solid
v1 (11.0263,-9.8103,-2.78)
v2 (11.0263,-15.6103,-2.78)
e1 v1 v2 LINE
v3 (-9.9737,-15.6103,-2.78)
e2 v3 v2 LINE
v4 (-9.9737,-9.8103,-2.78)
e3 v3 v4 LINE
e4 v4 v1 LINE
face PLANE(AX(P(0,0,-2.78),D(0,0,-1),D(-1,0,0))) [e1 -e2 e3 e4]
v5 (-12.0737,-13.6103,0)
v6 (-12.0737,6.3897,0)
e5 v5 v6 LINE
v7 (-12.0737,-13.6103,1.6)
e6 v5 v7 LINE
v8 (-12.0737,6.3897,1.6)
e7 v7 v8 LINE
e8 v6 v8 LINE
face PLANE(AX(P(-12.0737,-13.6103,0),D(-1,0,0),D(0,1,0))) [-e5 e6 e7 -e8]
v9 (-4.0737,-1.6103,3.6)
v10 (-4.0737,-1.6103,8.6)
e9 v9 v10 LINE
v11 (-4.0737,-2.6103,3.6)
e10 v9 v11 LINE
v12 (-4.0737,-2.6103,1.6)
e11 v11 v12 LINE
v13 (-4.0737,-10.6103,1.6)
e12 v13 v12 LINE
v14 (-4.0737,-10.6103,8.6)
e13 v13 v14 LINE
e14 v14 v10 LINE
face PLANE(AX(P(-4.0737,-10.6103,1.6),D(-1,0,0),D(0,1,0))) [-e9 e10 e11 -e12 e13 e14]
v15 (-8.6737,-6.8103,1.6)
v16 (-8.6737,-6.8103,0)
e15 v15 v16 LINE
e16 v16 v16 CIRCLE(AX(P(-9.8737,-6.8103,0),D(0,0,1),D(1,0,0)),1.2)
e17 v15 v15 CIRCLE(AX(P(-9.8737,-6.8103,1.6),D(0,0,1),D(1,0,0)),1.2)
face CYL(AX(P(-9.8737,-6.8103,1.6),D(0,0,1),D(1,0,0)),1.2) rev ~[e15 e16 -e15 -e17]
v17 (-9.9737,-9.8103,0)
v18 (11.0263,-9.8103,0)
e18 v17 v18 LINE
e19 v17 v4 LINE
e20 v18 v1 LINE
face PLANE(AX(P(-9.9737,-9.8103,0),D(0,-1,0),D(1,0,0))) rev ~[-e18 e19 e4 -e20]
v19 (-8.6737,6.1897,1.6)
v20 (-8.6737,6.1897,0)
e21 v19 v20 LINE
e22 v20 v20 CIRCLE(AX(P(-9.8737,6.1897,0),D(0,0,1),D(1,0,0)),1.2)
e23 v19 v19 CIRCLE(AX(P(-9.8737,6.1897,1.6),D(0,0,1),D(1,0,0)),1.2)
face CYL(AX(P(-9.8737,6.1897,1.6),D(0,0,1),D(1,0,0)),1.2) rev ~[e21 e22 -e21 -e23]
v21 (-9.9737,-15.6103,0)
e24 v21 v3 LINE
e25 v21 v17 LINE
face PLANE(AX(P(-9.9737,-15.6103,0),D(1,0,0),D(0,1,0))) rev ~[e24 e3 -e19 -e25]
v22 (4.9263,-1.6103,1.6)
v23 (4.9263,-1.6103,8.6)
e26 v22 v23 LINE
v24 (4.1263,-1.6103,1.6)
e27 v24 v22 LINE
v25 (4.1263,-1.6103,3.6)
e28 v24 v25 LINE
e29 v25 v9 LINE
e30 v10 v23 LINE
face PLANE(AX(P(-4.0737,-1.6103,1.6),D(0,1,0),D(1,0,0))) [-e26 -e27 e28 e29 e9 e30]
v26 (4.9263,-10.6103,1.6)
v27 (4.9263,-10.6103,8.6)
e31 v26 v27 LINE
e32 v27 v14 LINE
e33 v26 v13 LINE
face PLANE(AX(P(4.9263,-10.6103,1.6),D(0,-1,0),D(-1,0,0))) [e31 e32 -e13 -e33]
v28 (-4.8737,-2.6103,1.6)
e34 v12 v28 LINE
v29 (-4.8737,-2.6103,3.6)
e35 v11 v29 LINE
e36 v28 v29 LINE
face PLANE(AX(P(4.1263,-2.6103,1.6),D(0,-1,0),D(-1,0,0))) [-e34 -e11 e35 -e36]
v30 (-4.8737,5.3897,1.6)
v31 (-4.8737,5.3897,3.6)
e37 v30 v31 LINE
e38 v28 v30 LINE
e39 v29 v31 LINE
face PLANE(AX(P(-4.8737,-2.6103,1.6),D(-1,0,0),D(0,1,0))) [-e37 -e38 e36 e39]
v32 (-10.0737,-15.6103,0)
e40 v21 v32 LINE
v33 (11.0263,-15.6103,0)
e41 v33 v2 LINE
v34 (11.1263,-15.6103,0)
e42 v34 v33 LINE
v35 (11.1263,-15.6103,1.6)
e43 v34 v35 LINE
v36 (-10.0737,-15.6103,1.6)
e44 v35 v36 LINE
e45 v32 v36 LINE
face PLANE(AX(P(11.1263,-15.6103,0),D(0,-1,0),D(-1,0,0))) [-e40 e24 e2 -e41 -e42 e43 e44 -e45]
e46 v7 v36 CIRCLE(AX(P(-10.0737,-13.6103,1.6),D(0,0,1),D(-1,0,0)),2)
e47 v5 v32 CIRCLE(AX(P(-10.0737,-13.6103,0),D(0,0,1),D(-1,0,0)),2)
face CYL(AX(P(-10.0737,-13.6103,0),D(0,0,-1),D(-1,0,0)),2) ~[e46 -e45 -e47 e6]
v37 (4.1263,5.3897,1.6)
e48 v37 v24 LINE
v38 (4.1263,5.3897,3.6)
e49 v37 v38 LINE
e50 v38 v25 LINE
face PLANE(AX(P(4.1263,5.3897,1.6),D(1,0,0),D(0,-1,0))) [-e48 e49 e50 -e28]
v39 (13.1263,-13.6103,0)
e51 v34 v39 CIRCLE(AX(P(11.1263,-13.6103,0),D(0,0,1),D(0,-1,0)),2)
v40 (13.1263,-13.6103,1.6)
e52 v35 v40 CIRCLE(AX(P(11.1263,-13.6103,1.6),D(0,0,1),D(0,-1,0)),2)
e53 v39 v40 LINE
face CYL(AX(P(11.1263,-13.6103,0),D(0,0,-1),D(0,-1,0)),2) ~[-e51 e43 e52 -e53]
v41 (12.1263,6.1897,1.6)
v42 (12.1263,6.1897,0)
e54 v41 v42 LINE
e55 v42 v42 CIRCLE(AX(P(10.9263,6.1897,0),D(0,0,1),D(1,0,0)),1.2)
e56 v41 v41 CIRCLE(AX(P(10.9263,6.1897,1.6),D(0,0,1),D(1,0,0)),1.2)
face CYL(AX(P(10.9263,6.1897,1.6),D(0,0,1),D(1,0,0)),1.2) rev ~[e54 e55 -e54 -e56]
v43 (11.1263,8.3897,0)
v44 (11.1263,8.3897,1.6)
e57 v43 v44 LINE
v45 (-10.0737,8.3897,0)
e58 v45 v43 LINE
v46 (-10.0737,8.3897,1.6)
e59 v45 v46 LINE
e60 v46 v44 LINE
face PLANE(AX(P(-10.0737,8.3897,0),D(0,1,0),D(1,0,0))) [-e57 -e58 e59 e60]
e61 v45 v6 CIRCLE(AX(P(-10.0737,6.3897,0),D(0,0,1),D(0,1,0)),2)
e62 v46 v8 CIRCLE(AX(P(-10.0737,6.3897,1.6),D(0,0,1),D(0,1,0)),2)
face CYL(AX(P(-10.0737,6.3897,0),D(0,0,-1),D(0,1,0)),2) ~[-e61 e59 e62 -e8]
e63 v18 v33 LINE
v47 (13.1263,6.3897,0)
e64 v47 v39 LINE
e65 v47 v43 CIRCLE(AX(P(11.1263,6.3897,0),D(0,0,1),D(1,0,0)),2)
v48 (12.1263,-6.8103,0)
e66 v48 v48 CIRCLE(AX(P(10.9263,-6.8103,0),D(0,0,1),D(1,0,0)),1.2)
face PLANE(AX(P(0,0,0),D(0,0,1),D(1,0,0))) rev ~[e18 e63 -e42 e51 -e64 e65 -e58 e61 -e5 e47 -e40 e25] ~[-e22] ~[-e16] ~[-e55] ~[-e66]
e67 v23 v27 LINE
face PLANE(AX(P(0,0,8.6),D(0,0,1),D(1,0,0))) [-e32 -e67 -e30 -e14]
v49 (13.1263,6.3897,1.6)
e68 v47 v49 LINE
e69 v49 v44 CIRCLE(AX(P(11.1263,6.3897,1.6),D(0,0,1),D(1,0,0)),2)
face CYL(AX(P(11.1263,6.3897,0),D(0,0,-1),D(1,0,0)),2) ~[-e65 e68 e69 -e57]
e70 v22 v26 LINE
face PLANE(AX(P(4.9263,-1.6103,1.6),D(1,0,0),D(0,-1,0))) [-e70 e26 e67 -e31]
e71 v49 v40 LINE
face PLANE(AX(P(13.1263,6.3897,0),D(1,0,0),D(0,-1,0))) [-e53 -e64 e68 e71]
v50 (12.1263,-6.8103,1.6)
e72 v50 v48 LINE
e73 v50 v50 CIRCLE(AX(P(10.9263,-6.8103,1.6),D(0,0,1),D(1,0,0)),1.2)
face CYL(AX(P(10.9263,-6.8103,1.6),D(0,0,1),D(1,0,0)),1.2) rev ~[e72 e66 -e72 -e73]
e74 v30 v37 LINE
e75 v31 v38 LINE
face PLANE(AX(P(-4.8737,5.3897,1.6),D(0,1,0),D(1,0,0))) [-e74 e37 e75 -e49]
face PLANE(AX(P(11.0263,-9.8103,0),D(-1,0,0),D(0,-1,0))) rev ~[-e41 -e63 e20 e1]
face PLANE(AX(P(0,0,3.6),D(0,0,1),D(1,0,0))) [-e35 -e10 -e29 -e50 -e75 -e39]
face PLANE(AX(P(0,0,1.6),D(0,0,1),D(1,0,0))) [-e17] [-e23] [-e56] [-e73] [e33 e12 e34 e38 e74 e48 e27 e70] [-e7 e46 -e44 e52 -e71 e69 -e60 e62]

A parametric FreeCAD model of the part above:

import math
import FreeCAD as App
import Part
import Sketcher
from FreeCAD import Vector

doc = App.newDocument("Part")
params = doc.addObject("Spreadsheet::Sheet", "Params")
for row, (alias, value) in enumerate([
    ("sketch1_radius", "2 mm"),
    ("sketch1_height", "20 mm"),
    ("sketch1_width", "21.2 mm"),
    ("pad1_length", "1.6 mm"),
    ("sketch2_diameter", "2.4 mm"),
    ("sketch3_width", "9 mm"),
    ("sketch3_height", "8 mm"),
    ("pad2_length", "2 mm"),
    ("sketch4_width", "9 mm"),
    ("pad3_length", "7 mm"),
    ("sketch5_width", "21 mm"),
    ("sketch5_height", "5.8 mm"),
    ("pad4_length", "2.78 mm"),
], start=1):
    params.set(f"A{row}", alias)
    params.set(f"B{row}", "=" + value)
    params.setAlias(f"B{row}", alias)

body = doc.addObject("PartDesign::Body", "Body")

# Sketch on XY plane
sketch1 = doc.addObject("Sketcher::SketchObject", "Sketch")
body.addObject(sketch1)
sketch1.AttachmentSupport = (doc.XY_Plane, [""])
sketch1.MapMode = "FlatFace"
sketch1.addGeometry([
    Part.LineSegment(Vector(11.1, 8.4, 0), Vector(-10.1, 8.4, 0)),  # 0
    Part.ArcOfCircle(Part.Circle(Vector(-10.1, 6.4, 0), Vector(0, 0, 1), 2), math.radians(90), math.radians(180)),  # 1
    Part.LineSegment(Vector(-12.1, 6.4, 0), Vector(-12.1, -13.6, 0)),  # 2
    Part.ArcOfCircle(Part.Circle(Vector(-10.1, -13.6, 0), Vector(0, 0, 1), 2), math.radians(180), math.radians(270)),  # 3
    Part.LineSegment(Vector(-10.1, -15.6, 0), Vector(11.1, -15.6, 0)),  # 4
    Part.ArcOfCircle(Part.Circle(Vector(11.1, -13.6, 0), Vector(0, 0, 1), 2), math.radians(-90), math.radians(0)),  # 5
    Part.LineSegment(Vector(13.1, -13.6, 0), Vector(13.1, 6.4, 0)),  # 6
    Part.ArcOfCircle(Part.Circle(Vector(11.1, 6.4, 0), Vector(0, 0, 1), 2), math.radians(0), math.radians(90)),  # 7
], False)
sketch1.addConstraint([
    Sketcher.Constraint("Tangent", 0, 2, 1, 1),
    Sketcher.Constraint("Tangent", 1, 2, 2, 1),
    Sketcher.Constraint("Tangent", 2, 2, 3, 1),
    Sketcher.Constraint("Tangent", 3, 2, 4, 1),
    Sketcher.Constraint("Tangent", 4, 2, 5, 1),
    Sketcher.Constraint("Tangent", 5, 2, 6, 1),
    Sketcher.Constraint("Tangent", 6, 2, 7, 1),
    Sketcher.Constraint("Tangent", 7, 2, 0, 1),
    Sketcher.Constraint("Horizontal", 0),
    Sketcher.Constraint("Vertical", 2),
    Sketcher.Constraint("Horizontal", 4),
    Sketcher.Constraint("Vertical", 6),
    Sketcher.Constraint("Equal", 1, 3),
    Sketcher.Constraint("Equal", 3, 5),
    Sketcher.Constraint("Equal", 5, 7),
    Sketcher.Constraint("Radius", 1, 2.0),
    Sketcher.Constraint("DistanceY", 2, 2, 2, 1, 20.0),
    Sketcher.Constraint("DistanceX", 0, 2, 0, 1, 21.2),
    Sketcher.Constraint("DistanceX", 1, 3, -1, 1, 10.0737),
    Sketcher.Constraint("DistanceY", -1, 1, 1, 3, 6.3897),
])
sketch1.setExpression("Constraints[15]", "Params.sketch1_radius")
sketch1.setExpression("Constraints[16]", "Params.sketch1_height")
sketch1.setExpression("Constraints[17]", "Params.sketch1_width")
pad1 = doc.addObject("PartDesign::Pad", "Pad")
body.addObject(pad1)
pad1.Profile = sketch1
pad1.setExpression("Length", "Params.pad1_length")

# Sketch on XY plane
sketch2 = doc.addObject("Sketcher::SketchObject", "Sketch001")
body.addObject(sketch2)
sketch2.AttachmentSupport = (doc.XY_Plane, [""])
sketch2.MapMode = "FlatFace"
sketch2.AttachmentOffset = App.Placement(Vector(0, 0, 1.6), App.Rotation())
sketch2.addGeometry([
    Part.Circle(Vector(-9.9, 6.2, 0), Vector(0, 0, 1), 1.2),
    Part.Circle(Vector(10.9, 6.2, 0), Vector(0, 0, 1), 1.2),
    Part.Circle(Vector(10.9, -6.8, 0), Vector(0, 0, 1), 1.2),
    Part.Circle(Vector(-9.9, -6.8, 0), Vector(0, 0, 1), 1.2),
], False)
sketch2.addConstraint([
    Sketcher.Constraint("Equal", 0, 1),
    Sketcher.Constraint("Equal", 1, 2),
    Sketcher.Constraint("Equal", 2, 3),
    Sketcher.Constraint("Horizontal", 0, 3, 1, 3),
    Sketcher.Constraint("Horizontal", 2, 3, 3, 3),
    Sketcher.Constraint("Vertical", 1, 3, 2, 3),
    Sketcher.Constraint("Vertical", 0, 3, 3, 3),
    Sketcher.Constraint("Diameter", 0, 2.4),
    Sketcher.Constraint("DistanceY", 2, 3, 1, 3, 13.0),
    Sketcher.Constraint("DistanceX", 0, 3, 1, 3, 20.8),
    Sketcher.Constraint("DistanceX", 0, 3, -1, 1, 9.8737),
    Sketcher.Constraint("DistanceY", -1, 1, 0, 3, 6.1897),
])
sketch2.setExpression("Constraints[7]", "Params.sketch2_diameter")
pocket1 = doc.addObject("PartDesign::Pocket", "Pocket")
body.addObject(pocket1)
pocket1.Profile = sketch2
pocket1.Type = "UpToFirst"

# Sketch on XY plane
sketch3 = doc.addObject("Sketcher::SketchObject", "Sketch002")
body.addObject(sketch3)
sketch3.AttachmentSupport = (doc.XY_Plane, [""])
sketch3.MapMode = "FlatFace"
sketch3.AttachmentOffset = App.Placement(Vector(0, 0, 1.6), App.Rotation())
sketch3.addGeometry([
    Part.LineSegment(Vector(4, 5, 0), Vector(-5, 5, 0)),
    Part.LineSegment(Vector(-5, 5, 0), Vector(-5, -3, 0)),
    Part.LineSegment(Vector(-5, -3, 0), Vector(4, -3, 0)),
    Part.LineSegment(Vector(4, -3, 0), Vector(4, 5, 0)),
], False)
sketch3.addConstraint([
    Sketcher.Constraint("Coincident", 0, 2, 1, 1),
    Sketcher.Constraint("Coincident", 1, 2, 2, 1),
    Sketcher.Constraint("Coincident", 2, 2, 3, 1),
    Sketcher.Constraint("Coincident", 3, 2, 0, 1),
    Sketcher.Constraint("Horizontal", 0),
    Sketcher.Constraint("Vertical", 1),
    Sketcher.Constraint("Horizontal", 2),
    Sketcher.Constraint("Vertical", 3),
    Sketcher.Constraint("DistanceX", 0, 2, 0, 1, 9.0),
    Sketcher.Constraint("DistanceY", 1, 2, 1, 1, 8.0),
    Sketcher.Constraint("DistanceX", 0, 2, -1, 1, 4.8737),
    Sketcher.Constraint("DistanceY", -1, 1, 0, 2, 5.3897),
])
sketch3.setExpression("Constraints[8]", "Params.sketch3_width")
sketch3.setExpression("Constraints[9]", "Params.sketch3_height")
pad2 = doc.addObject("PartDesign::Pad", "Pad001")
body.addObject(pad2)
pad2.Profile = sketch3
pad2.setExpression("Length", "Params.pad2_length")

# Sketch on XY plane
sketch4 = doc.addObject("Sketcher::SketchObject", "Sketch003")
body.addObject(sketch4)
sketch4.AttachmentSupport = (doc.XY_Plane, [""])
sketch4.MapMode = "FlatFace"
sketch4.AttachmentOffset = App.Placement(Vector(0, 0, 1.6), App.Rotation())
sketch4.addGeometry([
    Part.LineSegment(Vector(5, -2, 0), Vector(-4, -2, 0)),
    Part.LineSegment(Vector(-4, -2, 0), Vector(-4, -11, 0)),
    Part.LineSegment(Vector(-4, -11, 0), Vector(5, -11, 0)),
    Part.LineSegment(Vector(5, -11, 0), Vector(5, -2, 0)),
], False)
sketch4.addConstraint([
    Sketcher.Constraint("Coincident", 0, 2, 1, 1),
    Sketcher.Constraint("Coincident", 1, 2, 2, 1),
    Sketcher.Constraint("Coincident", 2, 2, 3, 1),
    Sketcher.Constraint("Coincident", 3, 2, 0, 1),
    Sketcher.Constraint("Horizontal", 0),
    Sketcher.Constraint("Vertical", 1),
    Sketcher.Constraint("Horizontal", 2),
    Sketcher.Constraint("Vertical", 3),
    Sketcher.Constraint("Equal", 2, 1),
    Sketcher.Constraint("DistanceX", 0, 2, 0, 1, 9.0),
    Sketcher.Constraint("DistanceX", 0, 2, -1, 1, 4.0737),
    Sketcher.Constraint("DistanceY", 0, 2, -1, 1, 1.6103),
])
sketch4.setExpression("Constraints[9]", "Params.sketch4_width")
pad3 = doc.addObject("PartDesign::Pad", "Pad002")
body.addObject(pad3)
pad3.Profile = sketch4
pad3.setExpression("Length", "Params.pad3_length")

# Sketch on XY plane
sketch5 = doc.addObject("Sketcher::SketchObject", "Sketch004")
body.addObject(sketch5)
sketch5.AttachmentSupport = (doc.XY_Plane, [""])
sketch5.MapMode = "FlatFace"
sketch5.addGeometry([
    Part.LineSegment(Vector(11, -16, 0), Vector(-10, -16, 0)),
    Part.LineSegment(Vector(-10, -16, 0), Vector(-10, -10, 0)),
    Part.LineSegment(Vector(-10, -10, 0), Vector(11, -10, 0)),
    Part.LineSegment(Vector(11, -10, 0), Vector(11, -16, 0)),
], False)
sketch5.addConstraint([
    Sketcher.Constraint("Coincident", 0, 2, 1, 1),
    Sketcher.Constraint("Coincident", 1, 2, 2, 1),
    Sketcher.Constraint("Coincident", 2, 2, 3, 1),
    Sketcher.Constraint("Coincident", 3, 2, 0, 1),
    Sketcher.Constraint("Horizontal", 0),
    Sketcher.Constraint("Vertical", 1),
    Sketcher.Constraint("Horizontal", 2),
    Sketcher.Constraint("Vertical", 3),
    Sketcher.Constraint("DistanceX", 0, 2, 0, 1, 21.0),
    Sketcher.Constraint("DistanceY", 1, 1, 1, 2, 5.8),
    Sketcher.Constraint("DistanceX", 0, 2, -1, 1, 9.9737),
    Sketcher.Constraint("DistanceY", 0, 2, -1, 1, 15.6103),
])
sketch5.setExpression("Constraints[8]", "Params.sketch5_width")
sketch5.setExpression("Constraints[9]", "Params.sketch5_height")
pad4 = doc.addObject("PartDesign::Pad", "Pad003")
body.addObject(pad4)
pad4.Profile = sketch5
pad4.setExpression("Length", "Params.pad4_length")
pad4.Reversed = True

doc.recompute()
